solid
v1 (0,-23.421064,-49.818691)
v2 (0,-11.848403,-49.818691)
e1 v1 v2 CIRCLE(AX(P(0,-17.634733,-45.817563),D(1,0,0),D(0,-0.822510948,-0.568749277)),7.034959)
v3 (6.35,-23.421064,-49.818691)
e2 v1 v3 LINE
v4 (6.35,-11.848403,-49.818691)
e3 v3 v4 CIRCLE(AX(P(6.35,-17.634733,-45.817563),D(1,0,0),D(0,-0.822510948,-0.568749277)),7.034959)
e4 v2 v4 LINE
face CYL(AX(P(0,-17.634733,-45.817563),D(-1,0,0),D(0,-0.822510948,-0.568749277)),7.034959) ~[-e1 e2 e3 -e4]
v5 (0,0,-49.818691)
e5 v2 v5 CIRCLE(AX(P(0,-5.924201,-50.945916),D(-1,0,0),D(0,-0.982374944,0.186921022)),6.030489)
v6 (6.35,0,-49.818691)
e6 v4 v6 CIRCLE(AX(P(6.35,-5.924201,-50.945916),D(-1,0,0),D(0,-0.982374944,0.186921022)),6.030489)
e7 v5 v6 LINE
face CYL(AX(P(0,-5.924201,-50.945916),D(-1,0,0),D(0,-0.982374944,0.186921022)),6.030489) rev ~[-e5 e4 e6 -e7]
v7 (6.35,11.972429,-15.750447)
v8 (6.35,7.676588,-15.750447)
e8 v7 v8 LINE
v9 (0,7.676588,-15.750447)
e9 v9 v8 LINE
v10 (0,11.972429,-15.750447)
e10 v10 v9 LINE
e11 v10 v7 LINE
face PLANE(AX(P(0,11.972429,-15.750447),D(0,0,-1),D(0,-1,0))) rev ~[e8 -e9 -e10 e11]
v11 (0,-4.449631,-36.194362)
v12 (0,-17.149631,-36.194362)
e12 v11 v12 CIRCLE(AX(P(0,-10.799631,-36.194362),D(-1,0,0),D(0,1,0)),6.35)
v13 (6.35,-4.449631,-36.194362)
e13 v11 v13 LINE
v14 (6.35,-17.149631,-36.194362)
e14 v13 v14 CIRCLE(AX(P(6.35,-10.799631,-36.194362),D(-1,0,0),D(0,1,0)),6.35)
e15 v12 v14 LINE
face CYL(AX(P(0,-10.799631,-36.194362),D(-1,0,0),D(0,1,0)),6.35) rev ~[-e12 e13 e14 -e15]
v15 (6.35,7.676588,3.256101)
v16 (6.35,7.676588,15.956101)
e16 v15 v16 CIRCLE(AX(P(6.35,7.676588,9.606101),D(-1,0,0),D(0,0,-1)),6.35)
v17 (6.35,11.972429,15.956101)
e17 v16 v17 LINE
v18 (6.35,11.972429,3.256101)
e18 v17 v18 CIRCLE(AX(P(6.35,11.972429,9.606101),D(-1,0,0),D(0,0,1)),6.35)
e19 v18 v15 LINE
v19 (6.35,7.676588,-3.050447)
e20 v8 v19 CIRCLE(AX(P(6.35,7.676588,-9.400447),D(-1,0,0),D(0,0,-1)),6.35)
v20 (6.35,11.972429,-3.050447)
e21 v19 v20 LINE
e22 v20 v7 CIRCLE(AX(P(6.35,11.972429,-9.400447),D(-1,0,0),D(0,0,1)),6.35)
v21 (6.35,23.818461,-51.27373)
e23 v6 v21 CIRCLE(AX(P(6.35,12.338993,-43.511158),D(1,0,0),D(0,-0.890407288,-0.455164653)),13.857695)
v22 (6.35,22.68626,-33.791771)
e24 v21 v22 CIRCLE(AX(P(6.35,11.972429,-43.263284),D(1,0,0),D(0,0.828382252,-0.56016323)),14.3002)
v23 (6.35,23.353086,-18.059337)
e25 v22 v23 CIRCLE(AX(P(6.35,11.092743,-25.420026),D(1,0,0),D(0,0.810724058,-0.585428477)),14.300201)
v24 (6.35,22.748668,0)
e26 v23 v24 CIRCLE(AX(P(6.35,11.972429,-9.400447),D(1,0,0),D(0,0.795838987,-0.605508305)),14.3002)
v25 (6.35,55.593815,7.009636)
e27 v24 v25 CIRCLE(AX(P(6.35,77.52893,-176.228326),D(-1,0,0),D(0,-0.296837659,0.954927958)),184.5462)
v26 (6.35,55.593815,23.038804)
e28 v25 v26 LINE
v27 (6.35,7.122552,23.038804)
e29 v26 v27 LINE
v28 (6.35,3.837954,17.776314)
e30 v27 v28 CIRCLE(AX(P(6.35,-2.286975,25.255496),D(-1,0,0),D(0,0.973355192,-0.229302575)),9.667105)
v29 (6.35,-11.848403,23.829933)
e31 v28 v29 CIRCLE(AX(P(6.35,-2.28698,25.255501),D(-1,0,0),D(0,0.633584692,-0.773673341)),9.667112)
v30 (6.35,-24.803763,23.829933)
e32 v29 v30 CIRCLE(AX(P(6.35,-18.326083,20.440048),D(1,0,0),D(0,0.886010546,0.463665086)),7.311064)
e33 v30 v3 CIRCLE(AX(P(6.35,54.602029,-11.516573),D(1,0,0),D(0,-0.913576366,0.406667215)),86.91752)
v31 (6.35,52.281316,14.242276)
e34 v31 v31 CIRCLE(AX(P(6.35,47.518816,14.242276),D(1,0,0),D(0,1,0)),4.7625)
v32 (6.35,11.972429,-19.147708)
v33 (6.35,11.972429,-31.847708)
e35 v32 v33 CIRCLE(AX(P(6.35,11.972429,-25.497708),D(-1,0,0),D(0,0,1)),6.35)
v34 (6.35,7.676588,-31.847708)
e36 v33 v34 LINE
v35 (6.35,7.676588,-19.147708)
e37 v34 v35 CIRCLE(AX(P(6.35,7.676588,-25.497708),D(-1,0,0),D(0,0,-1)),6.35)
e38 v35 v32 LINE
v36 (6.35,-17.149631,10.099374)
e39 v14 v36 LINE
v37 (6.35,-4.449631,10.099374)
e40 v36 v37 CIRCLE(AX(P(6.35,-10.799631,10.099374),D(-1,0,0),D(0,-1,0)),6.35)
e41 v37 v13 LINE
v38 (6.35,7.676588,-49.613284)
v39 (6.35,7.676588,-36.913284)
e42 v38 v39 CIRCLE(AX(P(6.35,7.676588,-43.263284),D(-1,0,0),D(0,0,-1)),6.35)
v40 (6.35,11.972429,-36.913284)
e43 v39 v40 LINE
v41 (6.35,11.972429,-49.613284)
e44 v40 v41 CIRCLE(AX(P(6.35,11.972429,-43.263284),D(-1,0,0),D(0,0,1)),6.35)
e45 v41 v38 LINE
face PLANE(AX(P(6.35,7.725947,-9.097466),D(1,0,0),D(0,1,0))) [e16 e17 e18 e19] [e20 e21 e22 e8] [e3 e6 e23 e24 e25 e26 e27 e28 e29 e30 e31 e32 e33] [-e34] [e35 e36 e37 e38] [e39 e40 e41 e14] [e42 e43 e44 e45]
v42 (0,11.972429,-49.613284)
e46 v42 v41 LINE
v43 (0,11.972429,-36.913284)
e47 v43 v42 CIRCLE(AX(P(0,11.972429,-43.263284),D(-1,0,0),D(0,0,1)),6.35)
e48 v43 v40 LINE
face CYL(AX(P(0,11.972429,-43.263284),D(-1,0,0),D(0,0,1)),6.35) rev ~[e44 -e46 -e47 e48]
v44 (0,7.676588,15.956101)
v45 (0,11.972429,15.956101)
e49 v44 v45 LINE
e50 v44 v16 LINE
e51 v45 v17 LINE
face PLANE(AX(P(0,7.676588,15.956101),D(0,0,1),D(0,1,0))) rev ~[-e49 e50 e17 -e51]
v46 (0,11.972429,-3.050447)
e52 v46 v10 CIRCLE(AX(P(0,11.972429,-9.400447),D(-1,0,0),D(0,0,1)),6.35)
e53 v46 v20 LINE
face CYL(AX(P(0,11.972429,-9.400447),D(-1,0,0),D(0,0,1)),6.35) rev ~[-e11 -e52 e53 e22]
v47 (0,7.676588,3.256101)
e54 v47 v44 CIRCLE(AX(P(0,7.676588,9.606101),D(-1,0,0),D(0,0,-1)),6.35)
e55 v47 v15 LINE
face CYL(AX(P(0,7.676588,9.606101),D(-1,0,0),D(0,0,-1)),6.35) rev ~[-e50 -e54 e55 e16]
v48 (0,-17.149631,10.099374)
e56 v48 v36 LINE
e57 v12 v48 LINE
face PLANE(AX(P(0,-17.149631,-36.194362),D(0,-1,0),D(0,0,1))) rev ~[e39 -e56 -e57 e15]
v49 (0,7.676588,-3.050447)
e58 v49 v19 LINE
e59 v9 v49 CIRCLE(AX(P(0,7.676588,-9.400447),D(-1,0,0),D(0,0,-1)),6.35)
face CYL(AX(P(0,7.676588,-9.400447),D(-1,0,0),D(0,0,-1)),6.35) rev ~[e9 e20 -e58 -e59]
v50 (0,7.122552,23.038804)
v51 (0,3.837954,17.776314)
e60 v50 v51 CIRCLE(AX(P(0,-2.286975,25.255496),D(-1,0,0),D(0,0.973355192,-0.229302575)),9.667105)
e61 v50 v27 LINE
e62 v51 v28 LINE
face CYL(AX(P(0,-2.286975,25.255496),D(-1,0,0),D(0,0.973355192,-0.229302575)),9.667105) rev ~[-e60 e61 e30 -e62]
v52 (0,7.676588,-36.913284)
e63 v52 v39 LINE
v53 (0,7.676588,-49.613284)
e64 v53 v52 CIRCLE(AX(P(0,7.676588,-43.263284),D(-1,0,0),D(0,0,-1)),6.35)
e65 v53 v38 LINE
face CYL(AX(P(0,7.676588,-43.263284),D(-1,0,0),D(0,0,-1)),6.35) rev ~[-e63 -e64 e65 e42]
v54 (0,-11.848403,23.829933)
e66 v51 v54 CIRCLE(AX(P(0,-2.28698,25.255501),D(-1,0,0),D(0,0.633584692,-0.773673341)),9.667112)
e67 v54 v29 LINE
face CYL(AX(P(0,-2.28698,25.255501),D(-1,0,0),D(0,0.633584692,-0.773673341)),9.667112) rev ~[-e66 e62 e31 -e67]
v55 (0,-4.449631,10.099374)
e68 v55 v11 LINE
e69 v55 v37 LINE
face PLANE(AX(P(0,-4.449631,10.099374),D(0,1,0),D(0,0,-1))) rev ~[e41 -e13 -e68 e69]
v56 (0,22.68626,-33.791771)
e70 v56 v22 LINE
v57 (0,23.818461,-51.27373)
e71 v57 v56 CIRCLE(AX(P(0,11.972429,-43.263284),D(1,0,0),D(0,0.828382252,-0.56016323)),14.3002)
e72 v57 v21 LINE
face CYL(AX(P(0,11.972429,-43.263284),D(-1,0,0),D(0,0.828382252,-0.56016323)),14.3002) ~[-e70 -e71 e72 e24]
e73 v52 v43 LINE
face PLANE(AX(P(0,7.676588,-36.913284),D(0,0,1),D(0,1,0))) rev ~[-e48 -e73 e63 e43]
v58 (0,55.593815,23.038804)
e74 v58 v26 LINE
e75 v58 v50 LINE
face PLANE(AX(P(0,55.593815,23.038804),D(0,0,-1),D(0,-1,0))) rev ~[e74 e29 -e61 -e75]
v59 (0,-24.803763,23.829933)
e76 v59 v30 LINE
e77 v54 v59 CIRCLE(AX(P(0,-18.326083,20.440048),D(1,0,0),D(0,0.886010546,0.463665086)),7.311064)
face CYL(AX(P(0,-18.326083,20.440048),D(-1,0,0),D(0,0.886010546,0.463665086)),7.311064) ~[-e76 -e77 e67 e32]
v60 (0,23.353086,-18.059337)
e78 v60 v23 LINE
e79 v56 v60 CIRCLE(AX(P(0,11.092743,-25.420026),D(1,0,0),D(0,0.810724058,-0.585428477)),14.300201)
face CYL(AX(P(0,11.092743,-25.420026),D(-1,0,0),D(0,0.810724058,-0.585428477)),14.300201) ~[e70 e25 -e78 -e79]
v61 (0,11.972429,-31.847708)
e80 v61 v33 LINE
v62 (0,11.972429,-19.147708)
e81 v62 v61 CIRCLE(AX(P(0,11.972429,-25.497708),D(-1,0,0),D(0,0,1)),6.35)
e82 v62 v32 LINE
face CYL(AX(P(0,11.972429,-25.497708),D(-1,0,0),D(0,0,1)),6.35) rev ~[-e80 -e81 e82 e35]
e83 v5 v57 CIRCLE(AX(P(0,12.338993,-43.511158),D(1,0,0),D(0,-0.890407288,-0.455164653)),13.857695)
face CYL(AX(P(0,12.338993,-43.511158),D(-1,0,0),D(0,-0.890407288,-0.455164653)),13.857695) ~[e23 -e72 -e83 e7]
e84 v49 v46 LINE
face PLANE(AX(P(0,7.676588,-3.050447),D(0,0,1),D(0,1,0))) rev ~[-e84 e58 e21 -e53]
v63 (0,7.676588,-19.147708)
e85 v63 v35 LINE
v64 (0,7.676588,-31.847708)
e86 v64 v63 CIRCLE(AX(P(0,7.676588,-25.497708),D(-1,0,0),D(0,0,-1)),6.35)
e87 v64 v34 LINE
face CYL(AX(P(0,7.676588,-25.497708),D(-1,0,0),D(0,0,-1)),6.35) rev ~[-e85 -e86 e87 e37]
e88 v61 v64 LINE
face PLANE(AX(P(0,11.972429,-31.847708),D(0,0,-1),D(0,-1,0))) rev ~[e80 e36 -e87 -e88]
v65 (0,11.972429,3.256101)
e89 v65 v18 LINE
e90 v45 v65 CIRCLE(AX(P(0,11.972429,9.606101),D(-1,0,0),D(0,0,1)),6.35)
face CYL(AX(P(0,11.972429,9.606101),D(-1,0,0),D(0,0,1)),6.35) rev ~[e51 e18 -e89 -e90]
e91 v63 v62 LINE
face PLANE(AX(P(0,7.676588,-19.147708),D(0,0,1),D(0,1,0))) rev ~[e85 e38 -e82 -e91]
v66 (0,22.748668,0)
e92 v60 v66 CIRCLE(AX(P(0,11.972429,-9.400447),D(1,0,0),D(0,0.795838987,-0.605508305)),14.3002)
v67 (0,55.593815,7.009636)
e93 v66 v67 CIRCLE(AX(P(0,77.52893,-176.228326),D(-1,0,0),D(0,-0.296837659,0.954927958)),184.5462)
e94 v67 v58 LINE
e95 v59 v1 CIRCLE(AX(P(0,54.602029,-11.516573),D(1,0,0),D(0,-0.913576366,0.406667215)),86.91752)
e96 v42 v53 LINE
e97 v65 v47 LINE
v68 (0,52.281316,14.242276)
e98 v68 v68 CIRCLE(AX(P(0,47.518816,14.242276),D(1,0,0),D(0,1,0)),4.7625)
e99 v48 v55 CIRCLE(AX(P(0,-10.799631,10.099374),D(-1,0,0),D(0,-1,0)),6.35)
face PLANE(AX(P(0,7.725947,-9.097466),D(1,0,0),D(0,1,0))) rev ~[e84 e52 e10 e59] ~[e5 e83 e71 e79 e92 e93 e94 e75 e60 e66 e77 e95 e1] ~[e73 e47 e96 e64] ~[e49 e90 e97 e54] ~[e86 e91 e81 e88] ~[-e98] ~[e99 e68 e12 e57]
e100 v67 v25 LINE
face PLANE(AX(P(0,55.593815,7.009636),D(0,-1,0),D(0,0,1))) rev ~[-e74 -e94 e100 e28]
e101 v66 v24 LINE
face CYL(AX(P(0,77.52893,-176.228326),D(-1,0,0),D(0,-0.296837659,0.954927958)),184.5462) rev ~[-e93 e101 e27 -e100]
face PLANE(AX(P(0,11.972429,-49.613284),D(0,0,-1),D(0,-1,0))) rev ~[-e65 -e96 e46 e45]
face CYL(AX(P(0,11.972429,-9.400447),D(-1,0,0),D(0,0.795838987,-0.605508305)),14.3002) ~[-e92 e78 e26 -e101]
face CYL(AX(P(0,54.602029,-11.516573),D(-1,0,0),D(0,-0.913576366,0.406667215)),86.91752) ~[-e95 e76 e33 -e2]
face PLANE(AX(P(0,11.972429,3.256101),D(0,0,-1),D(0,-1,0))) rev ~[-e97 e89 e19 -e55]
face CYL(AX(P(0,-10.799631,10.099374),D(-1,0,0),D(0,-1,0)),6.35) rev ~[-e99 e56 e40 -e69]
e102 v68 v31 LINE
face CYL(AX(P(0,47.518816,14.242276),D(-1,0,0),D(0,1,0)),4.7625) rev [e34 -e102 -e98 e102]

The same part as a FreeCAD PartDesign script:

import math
import FreeCAD as App
import Part
import Sketcher
Q = App.Units.Quantity

doc = App.newDocument("Part")
body = doc.addObject("PartDesign::Body", "Body")

# Sketch on YZ plane
sketch1 = body.newObject("Sketcher::SketchObject", "Sketch")
sketch1.AttachmentSupport = (doc.getObject("YZ_Plane"), [""])
sketch1.MapMode = "FlatFace"
sketch1.addGeometry([
    Part.ArcOfCircle(Part.Circle(App.Vector(-18.3, 20.4, 0), App.Vector(0, 0, 1), 7.3), math.radians(28), math.radians(152)),  # 0
    Part.ArcOfCircle(Part.Circle(App.Vector(54.6, -11.5, 0), App.Vector(0, 0, 1), 86.9), math.radians(156), math.radians(206)),  # 1
    Part.ArcOfCircle(Part.Circle(App.Vector(-17.6, -45.8, 0), App.Vector(0, 0, 1), 7), math.radians(-145), math.radians(-35)),  # 2
    Part.ArcOfCircle(Part.Circle(App.Vector(-5.9, -50.9, 0), App.Vector(0, 0, 1), 6), math.radians(11), math.radians(169)),  # 3
    Part.ArcOfCircle(Part.Circle(App.Vector(12.3, -43.5, 0), App.Vector(0, 0, 1), 13.9), math.radians(-153), math.radians(-34)),  # 4
    Part.ArcOfCircle(Part.Circle(App.Vector(12, -43.3, 0), App.Vector(0, 0, 1), 14.3), math.radians(-34), math.radians(41)),  # 5
    Part.ArcOfCircle(Part.Circle(App.Vector(11.1, -25.4, 0), App.Vector(0, 0, 1), 14.3), math.radians(-36), math.radians(31)),  # 6
    Part.ArcOfCircle(Part.Circle(App.Vector(12, -9.4, 0), App.Vector(0, 0, 1), 14.3), math.radians(-37), math.radians(41)),  # 7
    Part.ArcOfCircle(Part.Circle(App.Vector(77.5, -176.2, 0), App.Vector(0, 0, 1), 184.5), math.radians(96.83), math.radians(107.27)),  # 8
    Part.LineSegment(App.Vector(55.6, 7, 0), App.Vector(55.6, 23, 0)),  # 9
    Part.LineSegment(App.Vector(55.6, 23, 0), App.Vector(7.1, 23, 0)),  # 10
    Part.ArcOfCircle(Part.Circle(App.Vector(-2.3, 25.3, 0), App.Vector(0, 0, 1), 9.7), math.radians(-51), math.radians(-13)),  # 11
    Part.ArcOfCircle(Part.Circle(App.Vector(-2.3, 25.3, 0), App.Vector(0, 0, 1), 9.7), math.radians(-172), math.radians(-51)),  # 12
    Part.ArcOfCircle(Part.Circle(App.Vector(12, -43.3, 0), App.Vector(0, 0, 1), 6.3), math.radians(-90), math.radians(90)),  # 13
    Part.LineSegment(App.Vector(12, -49.6, 0), App.Vector(7.7, -49.6, 0)),  # 14
    Part.ArcOfCircle(Part.Circle(App.Vector(7.7, -43.3, 0), App.Vector(0, 0, 1), 6.3), math.radians(90), math.radians(270)),  # 15
    Part.LineSegment(App.Vector(7.7, -36.9, 0), App.Vector(12, -36.9, 0)),  # 16
    Part.ArcOfCircle(Part.Circle(App.Vector(12, -25.5, 0), App.Vector(0, 0, 1), 6.3), math.radians(-90), math.radians(90)),  # 17
    Part.LineSegment(App.Vector(12, -31.8, 0), App.Vector(7.7, -31.8, 0)),  # 18
    Part.ArcOfCircle(Part.Circle(App.Vector(7.7, -25.5, 0), App.Vector(0, 0, 1), 6.3), math.radians(90), math.radians(270)),  # 19
    Part.LineSegment(App.Vector(7.7, -19.1, 0), App.Vector(12, -19.1, 0)),  # 20
    Part.ArcOfCircle(Part.Circle(App.Vector(-10.8, -36.2, 0), App.Vector(0, 0, 1), 6.3), math.radians(180), math.radians(360)),  # 21
    Part.LineSegment(App.Vector(-17.1, -36.2, 0), App.Vector(-17.1, 10.1, 0)),  # 22
    Part.ArcOfCircle(Part.Circle(App.Vector(-10.8, 10.1, 0), App.Vector(0, 0, 1), 6.3), math.radians(0), math.radians(180)),  # 23
    Part.LineSegment(App.Vector(-4.4, 10.1, 0), App.Vector(-4.4, -36.2, 0)),  # 24
    Part.ArcOfCircle(Part.Circle(App.Vector(12, -9.4, 0), App.Vector(0, 0, 1), 6.3), math.radians(-90), math.radians(90)),  # 25
    Part.LineSegment(App.Vector(12, -15.8, 0), App.Vector(7.7, -15.8, 0)),  # 26
    Part.ArcOfCircle(Part.Circle(App.Vector(7.7, -9.4, 0), App.Vector(0, 0, 1), 6.3), math.radians(90), math.radians(270)),  # 27
    Part.LineSegment(App.Vector(7.7, -3.1, 0), App.Vector(12, -3.1, 0)),  # 28
    Part.ArcOfCircle(Part.Circle(App.Vector(12, 9.6, 0), App.Vector(0, 0, 1), 6.3), math.radians(-90), math.radians(90)),  # 29
    Part.LineSegment(App.Vector(12, 3.3, 0), App.Vector(7.7, 3.3, 0)),  # 30
    Part.ArcOfCircle(Part.Circle(App.Vector(7.7, 9.6, 0), App.Vector(0, 0, 1), 6.3), math.radians(90), math.radians(270)),  # 31
    Part.LineSegment(App.Vector(7.7, 16, 0), App.Vector(12, 16, 0)),  # 32
    Part.Circle(App.Vector(47.5, 14.2, 0), App.Vector(0, 0, 1), 4.8),  # 33
], False)
sketch1.addConstraint([
    Sketcher.Constraint("Coincident", 0, 2, 1, 1),
    Sketcher.Constraint("Coincident", 1, 2, 2, 1),
    Sketcher.Constraint("Coincident", 2, 2, 3, 2),
    Sketcher.Constraint("Coincident", 3, 1, 4, 1),
    Sketcher.Constraint("Tangent", 4, 2, 5, 1),
    Sketcher.Constraint("Coincident", 5, 2, 6, 1),
    Sketcher.Constraint("Coincident", 6, 2, 7, 1),
    Sketcher.Constraint("Coincident", 7, 2, 8, 2),
    Sketcher.Constraint("Coincident", 8, 1, 9, 1),
    Sketcher.Constraint("Coincident", 9, 2, 10, 1),
    Sketcher.Constraint("Coincident", 10, 2, 11, 2),
    Sketcher.Constraint("Tangent", 11, 1, 12, 2),
    Sketcher.Constraint("Coincident", 12, 1, 0, 1),
    Sketcher.Constraint("Tangent", 13, 1, 14, 1),
    Sketcher.Constraint("Tangent", 14, 2, 15, 2),
    Sketcher.Constraint("Tangent", 15, 1, 16, 1),
    Sketcher.Constraint("Tangent", 16, 2, 13, 2),
    Sketcher.Constraint("Tangent", 17, 1, 18, 1),
    Sketcher.Constraint("Tangent", 18, 2, 19, 2),
    Sketcher.Constraint("Tangent", 19, 1, 20, 1),
    Sketcher.Constraint("Tangent", 20, 2, 17, 2),
    Sketcher.Constraint("Tangent", 21, 1, 22, 1),
    Sketcher.Constraint("Tangent", 22, 2, 23, 2),
    Sketcher.Constraint("Tangent", 23, 1, 24, 1),
    Sketcher.Constraint("Tangent", 24, 2, 21, 2),
    Sketcher.Constraint("Tangent", 25, 1, 26, 1),
    Sketcher.Constraint("Tangent", 26, 2, 27, 2),
    Sketcher.Constraint("Tangent", 27, 1, 28, 1),
    Sketcher.Constraint("Tangent", 28, 2, 25, 2),
    Sketcher.Constraint("Tangent", 29, 1, 30, 1),
    Sketcher.Constraint("Tangent", 30, 2, 31, 2),
    Sketcher.Constraint("Tangent", 31, 1, 32, 1),
    Sketcher.Constraint("Tangent", 32, 2, 29, 2),
    Sketcher.Constraint("Vertical", 9),
    Sketcher.Constraint("Horizontal", 10),
    Sketcher.Constraint("Horizontal", 14),
    Sketcher.Constraint("Horizontal", 16),
    Sketcher.Constraint("Horizontal", 18),
    Sketcher.Constraint("Horizontal", 20),
    Sketcher.Constraint("Vertical", 22),
    Sketcher.Constraint("Vertical", 24),
    Sketcher.Constraint("Horizontal", 26),
    Sketcher.Constraint("Horizontal", 28),
    Sketcher.Constraint("Horizontal", 30),
    Sketcher.Constraint("Horizontal", 32),
    Sketcher.Constraint("Coincident", 13, 3, 5, 3),
    Sketcher.Constraint("Coincident", 25, 3, 7, 3),
    Sketcher.Constraint("Equal", 5, 6),
    Sketcher.Constraint("Equal", 6, 7),
    Sketcher.Constraint("Equal", 15, 17),
    Sketcher.Constraint("Equal", 19, 21),
    Sketcher.Constraint("Equal", 23, 25),
    Sketcher.Constraint("Equal", 27, 29),
    Sketcher.Constraint("PointOnObject", 3, 1, -2),
    Sketcher.Constraint("PointOnObject", 7, 2, -1),
    Sketcher.Constraint("Horizontal", 1, 2, 2, 2),
    Sketcher.Constraint("Horizontal", 2, 2, 3, 1),
    Sketcher.Constraint("Horizontal", 0, 2, 12, 1),
    Sketcher.Constraint("Vertical", 5, 3, 7, 3),
    Sketcher.Constraint("Vertical", 13, 3, 17, 3),
    Sketcher.Constraint("Vertical", 15, 3, 19, 3),
    Sketcher.Constraint("Vertical", 19, 3, 27, 3),
    Sketcher.Constraint("Vertical", 25, 3, 29, 3),
    Sketcher.Constraint("Vertical", 27, 3, 31, 3),
    Sketcher.Constraint("Vertical", 2, 2, 12, 1),
    Sketcher.Constraint("Radius", 13, Q("0.25 in")),
    Sketcher.Constraint("Diameter", 33, Q("0.375 in")),
    Sketcher.Constraint("Radius", 5, Q("0.563 in")),
    Sketcher.Constraint("Radius", 8, 184.5462),
    Sketcher.Constraint("Radius", 1, 86.91752),
    Sketcher.Constraint("Radius", 2, 7.034959),
    Sketcher.Constraint("Radius", 3, 6.030489),
    Sketcher.Constraint("Radius", 12, 9.667112),
    Sketcher.Constraint("Radius", 0, 7.311064),
    Sketcher.Constraint("Radius", 4, 13.857695),
    Sketcher.Constraint("Radius", 11, 9.667105),
    Sketcher.Constraint("DistanceX", 14, 2, 14, 1, 4.295841),
    Sketcher.Constraint("DistanceX", 3, 3, -1, 1, 5.924201),
    Sketcher.Constraint("DistanceY", -1, 1, 12, 3, 25.255501),
    Sketcher.Constraint("DistanceY", -1, 1, 29, 3, 9.606101),
    Sketcher.Constraint("DistanceX", 5, 3, 1, 3, 42.6296),
    Sketcher.Constraint("DistanceX", 5, 3, 8, 3, 65.556501),
    Sketcher.Constraint("DistanceY", 8, 3, 6, 3, 150.8083),
    Sketcher.Constraint("DistanceY", 2, 3, 21, 3, 9.623201),
    Sketcher.Constraint("DistanceX", 33, 3, 8, 1, 8.074999),
    Sketcher.Constraint("DistanceX", 11, 1, 10, 2, 3.284598),
    Sketcher.Constraint("DistanceX", 10, 2, 10, 1, 48.471263),
    Sketcher.Constraint("DistanceY", 9, 1, 9, 2, 16.029168),
    Sketcher.Constraint("DistanceY", 22, 1, 22, 2, 46.293736),
    Sketcher.Constraint("DistanceX", -1, 1, 1, 3, 54.602029),
    Sketcher.Constraint("DistanceX", 12, 3, -1, 1, 2.28698),
    Sketcher.Constraint("DistanceX", 21, 3, -1, 1, 10.799631),
    Sketcher.Constraint("DistanceY", 21, 3, -1, 1, 36.194362),
    Sketcher.Constraint("DistanceY", 1, 2, -1, 1, 49.818691),
    Sketcher.Constraint("DistanceX", -1, 1, 4, 2, 23.818461),
    Sketcher.Constraint("DistanceX", -1, 1, 5, 2, 22.68626),
    Sketcher.Constraint("DistanceX", -1, 1, 10, 2, 7.122552),
    Sketcher.Constraint("DistanceY", 18, 2, -1, 1, 31.847708),
    Sketcher.Constraint("DistanceY", 1, 3, 33, 3, 25.758849),
])
pad1 = body.newObject("PartDesign::Pad", "Pad")
pad1.Profile = sketch1
pad1.Length = Q("0.25 in")

doc.recompute()
